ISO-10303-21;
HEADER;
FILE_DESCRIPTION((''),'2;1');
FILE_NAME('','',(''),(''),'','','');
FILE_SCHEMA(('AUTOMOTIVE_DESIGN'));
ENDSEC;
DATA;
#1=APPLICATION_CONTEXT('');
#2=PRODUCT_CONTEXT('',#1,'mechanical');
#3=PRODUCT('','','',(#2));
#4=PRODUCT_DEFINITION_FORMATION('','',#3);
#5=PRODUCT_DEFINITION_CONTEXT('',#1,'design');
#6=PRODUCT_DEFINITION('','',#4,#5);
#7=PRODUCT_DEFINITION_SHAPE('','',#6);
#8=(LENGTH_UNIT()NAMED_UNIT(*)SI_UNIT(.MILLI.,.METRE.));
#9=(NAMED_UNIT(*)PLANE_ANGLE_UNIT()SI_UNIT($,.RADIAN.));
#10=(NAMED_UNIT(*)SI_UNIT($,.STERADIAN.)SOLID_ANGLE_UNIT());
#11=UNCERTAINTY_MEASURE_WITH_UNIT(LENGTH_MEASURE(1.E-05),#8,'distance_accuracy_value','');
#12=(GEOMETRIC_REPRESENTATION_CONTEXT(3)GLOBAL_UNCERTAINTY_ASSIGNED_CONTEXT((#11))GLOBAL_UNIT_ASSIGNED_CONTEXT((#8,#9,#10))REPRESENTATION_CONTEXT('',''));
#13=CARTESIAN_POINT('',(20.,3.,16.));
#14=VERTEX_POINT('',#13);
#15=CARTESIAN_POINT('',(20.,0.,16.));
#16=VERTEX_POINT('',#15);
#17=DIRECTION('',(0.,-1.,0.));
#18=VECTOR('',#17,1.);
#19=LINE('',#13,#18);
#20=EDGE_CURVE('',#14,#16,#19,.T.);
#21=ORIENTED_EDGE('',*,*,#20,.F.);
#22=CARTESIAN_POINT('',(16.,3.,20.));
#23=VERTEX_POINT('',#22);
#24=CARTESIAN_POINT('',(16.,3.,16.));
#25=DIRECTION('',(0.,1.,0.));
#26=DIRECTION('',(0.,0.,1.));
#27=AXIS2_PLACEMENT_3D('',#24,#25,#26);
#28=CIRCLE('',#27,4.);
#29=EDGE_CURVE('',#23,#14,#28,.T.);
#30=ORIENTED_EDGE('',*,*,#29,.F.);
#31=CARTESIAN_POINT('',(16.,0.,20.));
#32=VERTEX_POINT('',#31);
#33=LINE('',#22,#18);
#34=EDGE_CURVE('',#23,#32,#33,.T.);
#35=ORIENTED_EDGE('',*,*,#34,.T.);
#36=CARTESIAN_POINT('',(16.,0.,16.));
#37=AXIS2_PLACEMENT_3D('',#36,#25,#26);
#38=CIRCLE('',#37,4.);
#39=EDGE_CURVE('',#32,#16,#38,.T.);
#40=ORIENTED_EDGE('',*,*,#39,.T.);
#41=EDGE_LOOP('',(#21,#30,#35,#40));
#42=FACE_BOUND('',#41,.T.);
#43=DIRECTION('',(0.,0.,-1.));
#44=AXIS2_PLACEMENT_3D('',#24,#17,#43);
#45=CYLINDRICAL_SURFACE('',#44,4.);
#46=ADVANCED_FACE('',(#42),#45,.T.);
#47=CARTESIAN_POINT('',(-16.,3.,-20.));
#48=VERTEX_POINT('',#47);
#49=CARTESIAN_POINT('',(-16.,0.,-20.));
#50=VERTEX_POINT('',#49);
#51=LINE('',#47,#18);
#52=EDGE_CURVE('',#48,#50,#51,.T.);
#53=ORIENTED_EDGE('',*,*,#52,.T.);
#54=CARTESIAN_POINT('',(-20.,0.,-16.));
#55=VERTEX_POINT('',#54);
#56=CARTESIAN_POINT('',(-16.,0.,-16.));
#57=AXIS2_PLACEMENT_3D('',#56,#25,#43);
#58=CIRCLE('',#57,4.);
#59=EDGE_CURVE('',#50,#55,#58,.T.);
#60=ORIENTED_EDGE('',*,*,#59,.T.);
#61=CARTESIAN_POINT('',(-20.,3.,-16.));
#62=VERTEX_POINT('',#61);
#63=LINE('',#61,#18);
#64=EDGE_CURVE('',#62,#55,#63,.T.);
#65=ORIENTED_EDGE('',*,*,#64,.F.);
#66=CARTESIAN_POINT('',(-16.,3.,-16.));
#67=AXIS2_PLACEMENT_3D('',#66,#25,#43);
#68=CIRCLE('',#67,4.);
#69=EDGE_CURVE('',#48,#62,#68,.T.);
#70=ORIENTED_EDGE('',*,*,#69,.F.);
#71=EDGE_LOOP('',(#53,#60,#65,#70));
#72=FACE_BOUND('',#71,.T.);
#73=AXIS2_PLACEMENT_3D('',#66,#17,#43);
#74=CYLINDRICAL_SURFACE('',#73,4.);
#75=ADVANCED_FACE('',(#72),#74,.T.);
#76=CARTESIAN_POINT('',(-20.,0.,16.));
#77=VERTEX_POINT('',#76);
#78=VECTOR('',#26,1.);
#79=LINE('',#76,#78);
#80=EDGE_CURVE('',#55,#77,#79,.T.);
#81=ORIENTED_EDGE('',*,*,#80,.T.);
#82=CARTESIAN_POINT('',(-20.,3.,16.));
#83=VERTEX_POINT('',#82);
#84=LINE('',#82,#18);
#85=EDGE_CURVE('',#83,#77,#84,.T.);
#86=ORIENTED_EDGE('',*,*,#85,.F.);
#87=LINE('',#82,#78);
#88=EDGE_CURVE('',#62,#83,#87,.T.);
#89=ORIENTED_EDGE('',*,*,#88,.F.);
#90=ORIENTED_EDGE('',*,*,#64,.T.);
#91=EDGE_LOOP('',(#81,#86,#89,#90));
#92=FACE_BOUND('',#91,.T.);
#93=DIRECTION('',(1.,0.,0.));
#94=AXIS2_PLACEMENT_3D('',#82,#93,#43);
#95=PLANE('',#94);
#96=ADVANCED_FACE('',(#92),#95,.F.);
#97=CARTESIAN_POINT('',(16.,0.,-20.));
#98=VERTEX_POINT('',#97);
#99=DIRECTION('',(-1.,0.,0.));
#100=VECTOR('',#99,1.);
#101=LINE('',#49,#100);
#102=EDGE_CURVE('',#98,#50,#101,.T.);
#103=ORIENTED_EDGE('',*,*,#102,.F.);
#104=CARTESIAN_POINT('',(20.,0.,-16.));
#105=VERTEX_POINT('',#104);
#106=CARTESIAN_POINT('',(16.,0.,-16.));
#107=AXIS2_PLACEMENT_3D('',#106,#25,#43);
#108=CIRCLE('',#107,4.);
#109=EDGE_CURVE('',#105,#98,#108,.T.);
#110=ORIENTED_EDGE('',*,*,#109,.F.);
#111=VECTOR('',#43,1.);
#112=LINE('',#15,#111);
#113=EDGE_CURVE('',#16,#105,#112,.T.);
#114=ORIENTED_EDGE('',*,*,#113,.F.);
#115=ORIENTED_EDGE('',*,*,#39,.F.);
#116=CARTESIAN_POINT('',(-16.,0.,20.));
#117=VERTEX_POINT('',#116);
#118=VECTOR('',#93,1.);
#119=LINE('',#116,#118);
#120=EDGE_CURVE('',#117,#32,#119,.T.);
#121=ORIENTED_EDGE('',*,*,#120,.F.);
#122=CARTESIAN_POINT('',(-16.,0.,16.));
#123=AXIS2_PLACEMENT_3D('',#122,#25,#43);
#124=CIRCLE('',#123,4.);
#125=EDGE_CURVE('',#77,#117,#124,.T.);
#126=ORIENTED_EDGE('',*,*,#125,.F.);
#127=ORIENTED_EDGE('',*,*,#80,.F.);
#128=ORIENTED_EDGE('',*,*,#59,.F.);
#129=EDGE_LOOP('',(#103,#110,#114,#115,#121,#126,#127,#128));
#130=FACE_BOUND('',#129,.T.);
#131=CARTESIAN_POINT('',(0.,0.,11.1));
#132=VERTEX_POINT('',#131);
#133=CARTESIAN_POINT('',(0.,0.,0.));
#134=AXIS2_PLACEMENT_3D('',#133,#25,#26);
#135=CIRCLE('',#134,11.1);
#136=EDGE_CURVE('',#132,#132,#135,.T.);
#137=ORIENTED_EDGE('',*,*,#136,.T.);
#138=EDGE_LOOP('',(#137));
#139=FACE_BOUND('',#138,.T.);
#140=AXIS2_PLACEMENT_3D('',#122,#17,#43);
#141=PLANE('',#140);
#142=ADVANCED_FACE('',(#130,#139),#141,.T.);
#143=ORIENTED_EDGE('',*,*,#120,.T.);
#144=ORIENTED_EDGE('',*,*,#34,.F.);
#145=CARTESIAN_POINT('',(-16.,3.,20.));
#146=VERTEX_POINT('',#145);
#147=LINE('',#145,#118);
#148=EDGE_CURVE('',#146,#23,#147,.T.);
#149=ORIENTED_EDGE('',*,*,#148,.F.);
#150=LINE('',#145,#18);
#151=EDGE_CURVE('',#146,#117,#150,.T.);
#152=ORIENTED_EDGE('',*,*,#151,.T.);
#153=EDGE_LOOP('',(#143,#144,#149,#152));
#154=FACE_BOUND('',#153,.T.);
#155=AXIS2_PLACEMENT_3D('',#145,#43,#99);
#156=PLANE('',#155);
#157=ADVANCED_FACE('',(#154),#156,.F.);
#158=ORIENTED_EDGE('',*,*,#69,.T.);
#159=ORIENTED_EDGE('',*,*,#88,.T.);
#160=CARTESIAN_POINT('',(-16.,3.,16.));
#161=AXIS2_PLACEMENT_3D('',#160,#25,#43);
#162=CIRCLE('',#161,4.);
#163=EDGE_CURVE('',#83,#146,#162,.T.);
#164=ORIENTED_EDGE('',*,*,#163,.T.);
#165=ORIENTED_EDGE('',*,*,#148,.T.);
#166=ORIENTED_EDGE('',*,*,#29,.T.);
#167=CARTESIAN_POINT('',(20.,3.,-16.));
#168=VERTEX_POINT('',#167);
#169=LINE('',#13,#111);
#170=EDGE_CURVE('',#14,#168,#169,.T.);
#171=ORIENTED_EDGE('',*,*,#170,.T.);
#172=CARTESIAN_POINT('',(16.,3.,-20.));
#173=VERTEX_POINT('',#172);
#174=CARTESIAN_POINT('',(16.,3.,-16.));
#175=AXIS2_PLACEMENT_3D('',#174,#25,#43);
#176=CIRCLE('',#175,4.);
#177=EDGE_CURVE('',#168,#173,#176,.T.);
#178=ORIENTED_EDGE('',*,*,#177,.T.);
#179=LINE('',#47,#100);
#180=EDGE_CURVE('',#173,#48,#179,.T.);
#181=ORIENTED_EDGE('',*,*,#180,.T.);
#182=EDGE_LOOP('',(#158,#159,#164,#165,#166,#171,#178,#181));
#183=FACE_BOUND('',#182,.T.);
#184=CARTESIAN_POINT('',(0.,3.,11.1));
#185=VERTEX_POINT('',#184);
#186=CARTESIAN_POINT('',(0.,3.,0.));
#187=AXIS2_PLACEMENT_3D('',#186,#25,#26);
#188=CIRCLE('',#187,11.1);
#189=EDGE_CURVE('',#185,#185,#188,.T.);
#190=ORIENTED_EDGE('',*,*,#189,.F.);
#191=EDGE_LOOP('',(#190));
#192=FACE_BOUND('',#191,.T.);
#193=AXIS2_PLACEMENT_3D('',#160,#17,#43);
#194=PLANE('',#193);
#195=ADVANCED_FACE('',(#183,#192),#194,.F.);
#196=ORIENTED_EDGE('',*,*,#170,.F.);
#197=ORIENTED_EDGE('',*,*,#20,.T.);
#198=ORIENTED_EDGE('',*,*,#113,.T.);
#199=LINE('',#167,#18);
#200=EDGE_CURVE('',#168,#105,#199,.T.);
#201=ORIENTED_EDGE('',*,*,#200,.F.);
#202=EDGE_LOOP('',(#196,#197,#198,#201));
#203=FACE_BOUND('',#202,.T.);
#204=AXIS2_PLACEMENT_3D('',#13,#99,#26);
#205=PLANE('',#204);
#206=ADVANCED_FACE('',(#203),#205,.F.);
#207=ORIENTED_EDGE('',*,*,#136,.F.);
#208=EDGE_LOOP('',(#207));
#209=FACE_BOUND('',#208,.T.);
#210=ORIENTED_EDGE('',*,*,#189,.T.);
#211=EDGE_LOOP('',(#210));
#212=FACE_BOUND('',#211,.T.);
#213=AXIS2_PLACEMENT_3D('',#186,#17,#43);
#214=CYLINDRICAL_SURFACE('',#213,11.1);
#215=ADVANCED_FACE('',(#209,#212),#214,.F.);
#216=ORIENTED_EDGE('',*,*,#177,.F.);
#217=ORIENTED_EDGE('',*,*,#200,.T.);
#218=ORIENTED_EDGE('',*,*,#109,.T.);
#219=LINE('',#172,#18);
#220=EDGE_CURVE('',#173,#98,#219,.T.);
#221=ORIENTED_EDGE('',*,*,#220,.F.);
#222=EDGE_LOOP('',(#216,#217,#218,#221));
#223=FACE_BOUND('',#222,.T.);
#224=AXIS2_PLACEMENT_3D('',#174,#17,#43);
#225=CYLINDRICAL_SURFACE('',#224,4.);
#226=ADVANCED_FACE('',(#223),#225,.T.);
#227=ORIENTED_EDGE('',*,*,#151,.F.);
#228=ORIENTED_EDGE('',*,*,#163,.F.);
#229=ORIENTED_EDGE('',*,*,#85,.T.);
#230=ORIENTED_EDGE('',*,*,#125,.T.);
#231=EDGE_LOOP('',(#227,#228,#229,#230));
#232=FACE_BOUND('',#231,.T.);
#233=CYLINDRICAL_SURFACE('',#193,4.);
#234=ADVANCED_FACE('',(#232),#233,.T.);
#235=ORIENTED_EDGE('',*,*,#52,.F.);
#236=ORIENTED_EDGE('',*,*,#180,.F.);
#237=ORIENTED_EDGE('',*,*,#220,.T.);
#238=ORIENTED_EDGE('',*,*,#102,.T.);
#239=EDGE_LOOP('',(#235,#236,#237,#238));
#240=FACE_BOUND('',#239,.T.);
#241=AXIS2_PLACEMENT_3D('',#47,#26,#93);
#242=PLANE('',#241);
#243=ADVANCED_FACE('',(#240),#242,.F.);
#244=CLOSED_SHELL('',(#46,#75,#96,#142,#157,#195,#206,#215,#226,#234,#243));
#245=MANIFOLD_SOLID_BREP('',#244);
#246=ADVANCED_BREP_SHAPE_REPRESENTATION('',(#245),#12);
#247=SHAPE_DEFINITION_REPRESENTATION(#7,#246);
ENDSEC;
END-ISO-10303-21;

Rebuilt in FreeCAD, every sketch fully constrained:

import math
import FreeCAD as App
import Part
import Sketcher

V = App.Vector

doc = App.newDocument("Part")
body = doc.addObject("PartDesign::Body", "Body")

sketch1 = body.newObject("Sketcher::SketchObject", "Sketch")
sketch1.AttachmentSupport = (doc.getObject("XZ_Plane"), [""])
sketch1.MapMode = "FlatFace"
sketch1.addGeometry(Part.LineSegment(V(-16, 20, 0), V(16, 20, 0)), False)
sketch1.addGeometry(Part.ArcOfCircle(Part.Circle(V(16, 16, 0), V(0, 0, 1), 4), math.radians(0), math.radians(90)), False)
sketch1.addGeometry(Part.LineSegment(V(20, 16, 0), V(20, -16, 0)), False)
sketch1.addGeometry(Part.ArcOfCircle(Part.Circle(V(16, -16, 0), V(0, 0, 1), 4), math.radians(-90), math.radians(0)), False)
sketch1.addGeometry(Part.LineSegment(V(16, -20, 0), V(-16, -20, 0)), False)
sketch1.addGeometry(Part.ArcOfCircle(Part.Circle(V(-16, -16, 0), V(0, 0, 1), 4), math.radians(180), math.radians(270)), False)
sketch1.addGeometry(Part.LineSegment(V(-20, -16, 0), V(-20, 16, 0)), False)
sketch1.addGeometry(Part.ArcOfCircle(Part.Circle(V(-16, 16, 0), V(0, 0, 1), 4), math.radians(90), math.radians(180)), False)
sketch1.addGeometry(Part.Circle(V(0, 0, 0), V(0, 0, 1), 11.1), False)
sketch1.addConstraint(Sketcher.Constraint("Tangent", 0, 2, 1, 2))
sketch1.addConstraint(Sketcher.Constraint("Tangent", 1, 1, 2, 1))
sketch1.addConstraint(Sketcher.Constraint("Tangent", 2, 2, 3, 2))
sketch1.addConstraint(Sketcher.Constraint("Tangent", 3, 1, 4, 1))
sketch1.addConstraint(Sketcher.Constraint("Tangent", 4, 2, 5, 2))
sketch1.addConstraint(Sketcher.Constraint("Tangent", 5, 1, 6, 1))
sketch1.addConstraint(Sketcher.Constraint("Tangent", 6, 2, 7, 2))
sketch1.addConstraint(Sketcher.Constraint("Tangent", 7, 1, 0, 1))
sketch1.addConstraint(Sketcher.Constraint("Horizontal", 0))
sketch1.addConstraint(Sketcher.Constraint("Vertical", 2))
sketch1.addConstraint(Sketcher.Constraint("Horizontal", 4))
sketch1.addConstraint(Sketcher.Constraint("Vertical", 6))
sketch1.addConstraint(Sketcher.Constraint("Coincident", 8, 3, -1, 1))
sketch1.addConstraint(Sketcher.Constraint("Equal", 1, 3))
sketch1.addConstraint(Sketcher.Constraint("Equal", 3, 5))
sketch1.addConstraint(Sketcher.Constraint("Equal", 5, 7))
sketch1.addConstraint(Sketcher.Constraint("Symmetric", 1, 3, 5, 3, -1, 1))
sketch1.addConstraint(Sketcher.Constraint("Equal", 4, 2))
sketch1.addConstraint(Sketcher.Constraint("Radius", 1, 4.0))
sketch1.addConstraint(Sketcher.Constraint("Diameter", 8, 22.2))
sketch1.addConstraint(Sketcher.Constraint("DistanceX", 0, 1, 0, 2, 32.0))
pad1 = body.newObject("PartDesign::Pad", "Pad")
pad1.Profile = sketch1
pad1.Length = 3
pad1.Reversed = True

doc.recompute()
